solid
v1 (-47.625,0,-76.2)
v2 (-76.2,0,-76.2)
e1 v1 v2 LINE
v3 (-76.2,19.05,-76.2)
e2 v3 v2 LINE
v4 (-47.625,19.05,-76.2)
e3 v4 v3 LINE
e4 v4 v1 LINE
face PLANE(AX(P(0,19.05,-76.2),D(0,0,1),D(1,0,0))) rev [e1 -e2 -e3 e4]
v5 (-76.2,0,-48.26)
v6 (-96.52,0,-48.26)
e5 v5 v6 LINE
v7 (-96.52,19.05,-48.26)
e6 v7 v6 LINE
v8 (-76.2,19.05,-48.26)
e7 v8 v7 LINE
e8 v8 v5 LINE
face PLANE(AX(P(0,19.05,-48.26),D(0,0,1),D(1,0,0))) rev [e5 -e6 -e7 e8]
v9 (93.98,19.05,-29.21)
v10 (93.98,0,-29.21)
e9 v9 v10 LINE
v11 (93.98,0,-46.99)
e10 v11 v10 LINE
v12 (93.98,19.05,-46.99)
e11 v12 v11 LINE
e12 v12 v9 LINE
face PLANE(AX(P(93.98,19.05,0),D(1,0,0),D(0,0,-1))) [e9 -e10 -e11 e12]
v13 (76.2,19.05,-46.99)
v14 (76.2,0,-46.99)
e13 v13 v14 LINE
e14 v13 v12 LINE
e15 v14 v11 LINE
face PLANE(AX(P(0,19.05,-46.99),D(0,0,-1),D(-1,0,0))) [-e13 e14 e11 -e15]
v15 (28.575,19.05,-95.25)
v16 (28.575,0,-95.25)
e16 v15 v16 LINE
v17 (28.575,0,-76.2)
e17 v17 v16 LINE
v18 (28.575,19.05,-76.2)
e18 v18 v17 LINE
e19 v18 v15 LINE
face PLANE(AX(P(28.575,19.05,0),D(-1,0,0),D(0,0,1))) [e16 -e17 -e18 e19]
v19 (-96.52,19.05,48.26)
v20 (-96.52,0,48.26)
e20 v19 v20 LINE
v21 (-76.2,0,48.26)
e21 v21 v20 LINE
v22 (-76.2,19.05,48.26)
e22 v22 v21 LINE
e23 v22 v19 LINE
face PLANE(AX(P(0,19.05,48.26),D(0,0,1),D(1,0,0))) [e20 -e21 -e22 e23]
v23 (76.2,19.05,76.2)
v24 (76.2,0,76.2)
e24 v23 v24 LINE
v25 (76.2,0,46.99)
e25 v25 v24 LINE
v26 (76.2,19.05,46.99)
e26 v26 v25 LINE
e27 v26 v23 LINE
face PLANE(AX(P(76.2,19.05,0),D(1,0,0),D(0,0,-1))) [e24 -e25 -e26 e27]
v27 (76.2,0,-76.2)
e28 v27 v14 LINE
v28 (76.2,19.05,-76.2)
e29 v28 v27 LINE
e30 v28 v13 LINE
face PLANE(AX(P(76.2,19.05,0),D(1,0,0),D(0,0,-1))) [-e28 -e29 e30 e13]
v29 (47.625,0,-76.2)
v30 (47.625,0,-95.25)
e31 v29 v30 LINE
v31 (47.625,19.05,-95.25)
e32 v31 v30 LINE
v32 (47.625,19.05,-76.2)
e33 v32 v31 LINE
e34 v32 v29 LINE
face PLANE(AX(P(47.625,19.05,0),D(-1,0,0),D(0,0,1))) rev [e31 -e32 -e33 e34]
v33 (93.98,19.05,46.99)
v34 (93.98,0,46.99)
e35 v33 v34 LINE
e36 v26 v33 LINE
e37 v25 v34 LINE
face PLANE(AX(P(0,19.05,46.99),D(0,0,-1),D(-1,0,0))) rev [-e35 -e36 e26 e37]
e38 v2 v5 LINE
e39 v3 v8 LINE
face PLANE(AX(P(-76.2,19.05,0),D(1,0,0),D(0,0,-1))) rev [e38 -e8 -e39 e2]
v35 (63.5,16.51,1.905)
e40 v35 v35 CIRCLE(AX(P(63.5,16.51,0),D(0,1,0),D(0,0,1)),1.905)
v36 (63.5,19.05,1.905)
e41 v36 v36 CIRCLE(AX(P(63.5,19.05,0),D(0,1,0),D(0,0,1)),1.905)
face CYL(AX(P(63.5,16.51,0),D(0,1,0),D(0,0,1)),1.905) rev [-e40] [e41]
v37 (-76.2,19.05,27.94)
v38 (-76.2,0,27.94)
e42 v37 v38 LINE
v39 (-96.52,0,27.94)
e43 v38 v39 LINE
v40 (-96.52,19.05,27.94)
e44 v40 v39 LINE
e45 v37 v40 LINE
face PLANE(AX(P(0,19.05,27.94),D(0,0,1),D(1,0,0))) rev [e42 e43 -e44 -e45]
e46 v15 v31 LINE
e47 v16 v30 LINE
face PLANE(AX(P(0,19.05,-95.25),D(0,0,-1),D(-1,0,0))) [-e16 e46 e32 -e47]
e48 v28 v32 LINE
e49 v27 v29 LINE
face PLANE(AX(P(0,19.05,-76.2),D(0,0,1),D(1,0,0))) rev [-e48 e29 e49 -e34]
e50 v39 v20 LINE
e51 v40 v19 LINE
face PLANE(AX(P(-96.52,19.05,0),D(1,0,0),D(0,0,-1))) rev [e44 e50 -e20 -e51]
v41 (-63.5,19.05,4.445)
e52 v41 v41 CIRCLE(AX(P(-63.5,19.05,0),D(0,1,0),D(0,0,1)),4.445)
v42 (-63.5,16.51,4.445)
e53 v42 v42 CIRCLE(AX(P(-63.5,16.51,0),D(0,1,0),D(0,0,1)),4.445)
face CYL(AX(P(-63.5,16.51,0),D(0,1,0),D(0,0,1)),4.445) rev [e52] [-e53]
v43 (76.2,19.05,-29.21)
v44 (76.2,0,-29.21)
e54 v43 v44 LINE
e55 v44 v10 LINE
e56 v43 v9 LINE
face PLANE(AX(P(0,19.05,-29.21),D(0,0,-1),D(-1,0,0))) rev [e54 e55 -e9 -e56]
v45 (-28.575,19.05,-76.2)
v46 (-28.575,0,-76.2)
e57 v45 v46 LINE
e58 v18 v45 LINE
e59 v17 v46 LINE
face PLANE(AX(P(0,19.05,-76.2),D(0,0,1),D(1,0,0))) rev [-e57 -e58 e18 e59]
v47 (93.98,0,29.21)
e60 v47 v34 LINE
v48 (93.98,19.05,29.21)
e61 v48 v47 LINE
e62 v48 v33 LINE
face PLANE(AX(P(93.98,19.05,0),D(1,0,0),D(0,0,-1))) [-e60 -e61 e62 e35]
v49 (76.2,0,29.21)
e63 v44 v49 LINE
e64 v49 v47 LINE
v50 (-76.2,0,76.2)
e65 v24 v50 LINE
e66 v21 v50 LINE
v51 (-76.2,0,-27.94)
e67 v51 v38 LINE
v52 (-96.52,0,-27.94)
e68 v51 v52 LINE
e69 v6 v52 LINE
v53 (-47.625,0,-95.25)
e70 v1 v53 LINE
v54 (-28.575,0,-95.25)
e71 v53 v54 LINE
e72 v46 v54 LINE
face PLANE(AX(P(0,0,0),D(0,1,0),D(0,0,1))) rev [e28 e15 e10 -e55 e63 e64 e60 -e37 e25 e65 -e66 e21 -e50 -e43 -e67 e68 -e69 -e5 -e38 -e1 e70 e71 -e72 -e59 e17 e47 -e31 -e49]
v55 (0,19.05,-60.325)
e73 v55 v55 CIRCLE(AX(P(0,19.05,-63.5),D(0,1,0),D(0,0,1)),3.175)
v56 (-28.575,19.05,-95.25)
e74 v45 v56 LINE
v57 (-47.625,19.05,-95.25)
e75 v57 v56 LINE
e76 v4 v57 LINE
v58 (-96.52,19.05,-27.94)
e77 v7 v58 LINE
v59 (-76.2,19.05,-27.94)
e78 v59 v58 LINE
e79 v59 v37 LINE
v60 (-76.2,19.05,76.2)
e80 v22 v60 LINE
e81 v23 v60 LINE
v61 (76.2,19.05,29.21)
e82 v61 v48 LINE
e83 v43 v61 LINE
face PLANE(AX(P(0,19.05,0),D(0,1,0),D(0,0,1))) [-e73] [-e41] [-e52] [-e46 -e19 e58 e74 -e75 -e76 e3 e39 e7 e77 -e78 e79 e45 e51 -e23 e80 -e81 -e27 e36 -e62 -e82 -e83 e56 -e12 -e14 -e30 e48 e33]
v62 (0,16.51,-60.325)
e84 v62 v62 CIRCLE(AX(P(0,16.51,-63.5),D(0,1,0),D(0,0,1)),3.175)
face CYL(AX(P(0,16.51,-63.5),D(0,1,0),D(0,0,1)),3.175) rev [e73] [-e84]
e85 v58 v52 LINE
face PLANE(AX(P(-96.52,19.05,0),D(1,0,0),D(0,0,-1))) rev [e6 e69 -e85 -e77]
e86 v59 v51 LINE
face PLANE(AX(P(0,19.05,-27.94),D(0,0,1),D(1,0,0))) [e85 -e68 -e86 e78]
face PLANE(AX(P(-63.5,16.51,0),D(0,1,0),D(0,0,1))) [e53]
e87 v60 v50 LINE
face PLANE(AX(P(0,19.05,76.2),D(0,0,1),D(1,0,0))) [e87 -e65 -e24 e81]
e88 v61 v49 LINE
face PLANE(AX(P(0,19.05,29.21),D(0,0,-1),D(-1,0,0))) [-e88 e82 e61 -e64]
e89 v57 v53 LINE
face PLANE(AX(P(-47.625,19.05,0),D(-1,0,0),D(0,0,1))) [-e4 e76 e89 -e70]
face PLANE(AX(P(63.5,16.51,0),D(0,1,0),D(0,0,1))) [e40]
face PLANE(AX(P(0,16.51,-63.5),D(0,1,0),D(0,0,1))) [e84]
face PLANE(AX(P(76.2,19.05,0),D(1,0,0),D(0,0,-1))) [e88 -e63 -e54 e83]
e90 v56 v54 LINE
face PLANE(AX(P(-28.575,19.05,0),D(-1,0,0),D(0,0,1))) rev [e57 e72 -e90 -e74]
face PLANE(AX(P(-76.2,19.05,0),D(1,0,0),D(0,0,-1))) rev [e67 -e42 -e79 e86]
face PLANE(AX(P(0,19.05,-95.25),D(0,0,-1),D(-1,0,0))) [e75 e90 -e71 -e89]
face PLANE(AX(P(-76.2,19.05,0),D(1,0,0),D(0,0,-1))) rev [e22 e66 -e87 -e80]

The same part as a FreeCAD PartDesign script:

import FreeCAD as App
import Part
import Sketcher
from FreeCAD import Vector
Q = App.Units.Quantity


def add_polygon(sketch, points):
    """Adds a closed chain of lines whose ends are joined by coincident constraints."""
    first, n = sketch.GeometryCount, len(points)
    for a, b in zip(points, points[1:] + points[:1]):
        sketch.addGeometry(Part.LineSegment(App.Vector(*a, 0), App.Vector(*b, 0)), False)
    for i in range(n):
        sketch.addConstraint(Sketcher.Constraint("Coincident", first + i, 2, first + (i + 1) % n, 1))

doc = App.newDocument("Part")
body = doc.addObject("PartDesign::Body", "Body")

sketch1 = body.newObject("Sketcher::SketchObject", "Sketch")
sketch1.AttachmentSupport = (doc.getObject("XZ_Plane"), [""])
sketch1.MapMode = "FlatFace"
add_polygon(sketch1, [(-76, 48), (-76, 76), (76, 76), (76, 47), (94, 47), (94, 29), (76, 29), (76, -29), (94, -29), (94, -47), (76, -47), (76, -76), (48, -76), (48, -95), (29, -95), (29, -76), (-29, -76), (-29, -95), (-48, -95), (-48, -76), (-76, -76), (-76, -48), (-97, -48), (-97, -28), (-76, -28), (-76, 28), (-97, 28), (-97, 48)])
sketch1.addConstraint([
    Sketcher.Constraint("Vertical", 0),
    Sketcher.Constraint("Horizontal", 1),
    Sketcher.Constraint("Vertical", 2),
    Sketcher.Constraint("Horizontal", 3),
    Sketcher.Constraint("Vertical", 4),
    Sketcher.Constraint("Horizontal", 5),
    Sketcher.Constraint("Vertical", 6),
    Sketcher.Constraint("Horizontal", 7),
    Sketcher.Constraint("Vertical", 8),
    Sketcher.Constraint("Horizontal", 9),
    Sketcher.Constraint("Vertical", 10),
    Sketcher.Constraint("Horizontal", 11),
    Sketcher.Constraint("Vertical", 12),
    Sketcher.Constraint("Horizontal", 13),
    Sketcher.Constraint("Vertical", 14),
    Sketcher.Constraint("Horizontal", 15),
    Sketcher.Constraint("Vertical", 16),
    Sketcher.Constraint("Horizontal", 17),
    Sketcher.Constraint("Vertical", 18),
    Sketcher.Constraint("Horizontal", 19),
    Sketcher.Constraint("Vertical", 20),
    Sketcher.Constraint("Horizontal", 21),
    Sketcher.Constraint("Vertical", 22),
    Sketcher.Constraint("Horizontal", 23),
    Sketcher.Constraint("Vertical", 24),
    Sketcher.Constraint("Horizontal", 25),
    Sketcher.Constraint("Vertical", 26),
    Sketcher.Constraint("Horizontal", 27),
    Sketcher.Constraint("Symmetric", 0, 2, 10, 2, -1, 1),
    Sketcher.Constraint("Symmetric", 1, 2, 19, 2, -1, 1),
    Sketcher.Constraint("Symmetric", 13, 2, 16, 2, -2),
    Sketcher.Constraint("Symmetric", 4, 2, 7, 2, -1),
    Sketcher.Constraint("Symmetric", 2, 2, 9, 2, -1),
    Sketcher.Constraint("Symmetric", 22, 2, 25, 2, -1),
    Sketcher.Constraint("Horizontal", 11, 2, 14, 2),
    Sketcher.Constraint("Vertical", 2, 2, 5, 2),
    Sketcher.Constraint("Vertical", 20, 2, 23, 2),
    Sketcher.Constraint("Equal", 13, 17),
    Sketcher.Constraint("Equal", 9, 4),
    Sketcher.Constraint("Equal", 17, 12),
    Sketcher.Constraint("Equal", 0, 20),
    Sketcher.Constraint("Equal", 27, 22),
    Sketcher.Constraint("DistanceX", 1, 1, 1, 2, Q("6 in")),
    Sketcher.Constraint("DistanceX", 3, 1, 3, 2, Q("0.7 in")),
    Sketcher.Constraint("DistanceX", 21, 2, 21, 1, Q("0.8 in")),
    Sketcher.Constraint("DistanceY", 0, 1, 0, 2, Q("1.1 in")),
    Sketcher.Constraint("DistanceY", 6, 2, 6, 1, Q("2.3 in")),
    Sketcher.Constraint("DistanceY", 24, 1, 24, 2, Q("2.2 in")),
    Sketcher.Constraint("DistanceX", 15, 2, 11, 2, Q("3 in")),
    Sketcher.Constraint("DistanceX", 13, 2, 13, 1, Q("0.75 in")),
])
pad1 = body.newObject("PartDesign::Pad", "Pad")
pad1.Profile = sketch1
pad1.Length = Q("0.75 in")
pad1.Reversed = True

sketch2 = body.newObject("Sketcher::SketchObject", "Sketch001")
sketch2.AttachmentSupport = (doc.getObject("XZ_Plane"), [""])
sketch2.MapMode = "FlatFace"
sketch2.AttachmentOffset = App.Placement(Vector(0, 0, -0.75 * 25.4), App.Rotation())
sketch2.addGeometry([
    Part.Circle(Vector(63.5, 0, 0), Vector(0, 0, 1), 1.9),
    Part.Circle(Vector(0, -63.5, 0), Vector(0, 0, 1), 3.2),
    Part.Circle(Vector(-63.5, 0, 0), Vector(0, 0, 1), 4.4),
], False)
sketch2.addConstraint([
    Sketcher.Constraint("Symmetric", 0, 3, 2, 3, -1, 1),
    Sketcher.Constraint("PointOnObject", 0, 3, -1),
    Sketcher.Constraint("PointOnObject", 1, 3, -2),
    Sketcher.Constraint("Diameter", 0, Q("0.15 in")),
    Sketcher.Constraint("Diameter", 1, Q("0.25 in")),
    Sketcher.Constraint("Diameter", 2, Q("0.35 in")),
    Sketcher.Constraint("DistanceX", 2, 3, 0, 3, Q("5 in")),
    Sketcher.Constraint("DistanceY", 1, 3, -1, 1, Q("2.5 in")),
])
pocket1 = body.newObject("PartDesign::Pocket", "Pocket")
pocket1.Profile = sketch2
pocket1.Length = Q("0.1 in")
pocket1.Reversed = True

doc.recompute()
